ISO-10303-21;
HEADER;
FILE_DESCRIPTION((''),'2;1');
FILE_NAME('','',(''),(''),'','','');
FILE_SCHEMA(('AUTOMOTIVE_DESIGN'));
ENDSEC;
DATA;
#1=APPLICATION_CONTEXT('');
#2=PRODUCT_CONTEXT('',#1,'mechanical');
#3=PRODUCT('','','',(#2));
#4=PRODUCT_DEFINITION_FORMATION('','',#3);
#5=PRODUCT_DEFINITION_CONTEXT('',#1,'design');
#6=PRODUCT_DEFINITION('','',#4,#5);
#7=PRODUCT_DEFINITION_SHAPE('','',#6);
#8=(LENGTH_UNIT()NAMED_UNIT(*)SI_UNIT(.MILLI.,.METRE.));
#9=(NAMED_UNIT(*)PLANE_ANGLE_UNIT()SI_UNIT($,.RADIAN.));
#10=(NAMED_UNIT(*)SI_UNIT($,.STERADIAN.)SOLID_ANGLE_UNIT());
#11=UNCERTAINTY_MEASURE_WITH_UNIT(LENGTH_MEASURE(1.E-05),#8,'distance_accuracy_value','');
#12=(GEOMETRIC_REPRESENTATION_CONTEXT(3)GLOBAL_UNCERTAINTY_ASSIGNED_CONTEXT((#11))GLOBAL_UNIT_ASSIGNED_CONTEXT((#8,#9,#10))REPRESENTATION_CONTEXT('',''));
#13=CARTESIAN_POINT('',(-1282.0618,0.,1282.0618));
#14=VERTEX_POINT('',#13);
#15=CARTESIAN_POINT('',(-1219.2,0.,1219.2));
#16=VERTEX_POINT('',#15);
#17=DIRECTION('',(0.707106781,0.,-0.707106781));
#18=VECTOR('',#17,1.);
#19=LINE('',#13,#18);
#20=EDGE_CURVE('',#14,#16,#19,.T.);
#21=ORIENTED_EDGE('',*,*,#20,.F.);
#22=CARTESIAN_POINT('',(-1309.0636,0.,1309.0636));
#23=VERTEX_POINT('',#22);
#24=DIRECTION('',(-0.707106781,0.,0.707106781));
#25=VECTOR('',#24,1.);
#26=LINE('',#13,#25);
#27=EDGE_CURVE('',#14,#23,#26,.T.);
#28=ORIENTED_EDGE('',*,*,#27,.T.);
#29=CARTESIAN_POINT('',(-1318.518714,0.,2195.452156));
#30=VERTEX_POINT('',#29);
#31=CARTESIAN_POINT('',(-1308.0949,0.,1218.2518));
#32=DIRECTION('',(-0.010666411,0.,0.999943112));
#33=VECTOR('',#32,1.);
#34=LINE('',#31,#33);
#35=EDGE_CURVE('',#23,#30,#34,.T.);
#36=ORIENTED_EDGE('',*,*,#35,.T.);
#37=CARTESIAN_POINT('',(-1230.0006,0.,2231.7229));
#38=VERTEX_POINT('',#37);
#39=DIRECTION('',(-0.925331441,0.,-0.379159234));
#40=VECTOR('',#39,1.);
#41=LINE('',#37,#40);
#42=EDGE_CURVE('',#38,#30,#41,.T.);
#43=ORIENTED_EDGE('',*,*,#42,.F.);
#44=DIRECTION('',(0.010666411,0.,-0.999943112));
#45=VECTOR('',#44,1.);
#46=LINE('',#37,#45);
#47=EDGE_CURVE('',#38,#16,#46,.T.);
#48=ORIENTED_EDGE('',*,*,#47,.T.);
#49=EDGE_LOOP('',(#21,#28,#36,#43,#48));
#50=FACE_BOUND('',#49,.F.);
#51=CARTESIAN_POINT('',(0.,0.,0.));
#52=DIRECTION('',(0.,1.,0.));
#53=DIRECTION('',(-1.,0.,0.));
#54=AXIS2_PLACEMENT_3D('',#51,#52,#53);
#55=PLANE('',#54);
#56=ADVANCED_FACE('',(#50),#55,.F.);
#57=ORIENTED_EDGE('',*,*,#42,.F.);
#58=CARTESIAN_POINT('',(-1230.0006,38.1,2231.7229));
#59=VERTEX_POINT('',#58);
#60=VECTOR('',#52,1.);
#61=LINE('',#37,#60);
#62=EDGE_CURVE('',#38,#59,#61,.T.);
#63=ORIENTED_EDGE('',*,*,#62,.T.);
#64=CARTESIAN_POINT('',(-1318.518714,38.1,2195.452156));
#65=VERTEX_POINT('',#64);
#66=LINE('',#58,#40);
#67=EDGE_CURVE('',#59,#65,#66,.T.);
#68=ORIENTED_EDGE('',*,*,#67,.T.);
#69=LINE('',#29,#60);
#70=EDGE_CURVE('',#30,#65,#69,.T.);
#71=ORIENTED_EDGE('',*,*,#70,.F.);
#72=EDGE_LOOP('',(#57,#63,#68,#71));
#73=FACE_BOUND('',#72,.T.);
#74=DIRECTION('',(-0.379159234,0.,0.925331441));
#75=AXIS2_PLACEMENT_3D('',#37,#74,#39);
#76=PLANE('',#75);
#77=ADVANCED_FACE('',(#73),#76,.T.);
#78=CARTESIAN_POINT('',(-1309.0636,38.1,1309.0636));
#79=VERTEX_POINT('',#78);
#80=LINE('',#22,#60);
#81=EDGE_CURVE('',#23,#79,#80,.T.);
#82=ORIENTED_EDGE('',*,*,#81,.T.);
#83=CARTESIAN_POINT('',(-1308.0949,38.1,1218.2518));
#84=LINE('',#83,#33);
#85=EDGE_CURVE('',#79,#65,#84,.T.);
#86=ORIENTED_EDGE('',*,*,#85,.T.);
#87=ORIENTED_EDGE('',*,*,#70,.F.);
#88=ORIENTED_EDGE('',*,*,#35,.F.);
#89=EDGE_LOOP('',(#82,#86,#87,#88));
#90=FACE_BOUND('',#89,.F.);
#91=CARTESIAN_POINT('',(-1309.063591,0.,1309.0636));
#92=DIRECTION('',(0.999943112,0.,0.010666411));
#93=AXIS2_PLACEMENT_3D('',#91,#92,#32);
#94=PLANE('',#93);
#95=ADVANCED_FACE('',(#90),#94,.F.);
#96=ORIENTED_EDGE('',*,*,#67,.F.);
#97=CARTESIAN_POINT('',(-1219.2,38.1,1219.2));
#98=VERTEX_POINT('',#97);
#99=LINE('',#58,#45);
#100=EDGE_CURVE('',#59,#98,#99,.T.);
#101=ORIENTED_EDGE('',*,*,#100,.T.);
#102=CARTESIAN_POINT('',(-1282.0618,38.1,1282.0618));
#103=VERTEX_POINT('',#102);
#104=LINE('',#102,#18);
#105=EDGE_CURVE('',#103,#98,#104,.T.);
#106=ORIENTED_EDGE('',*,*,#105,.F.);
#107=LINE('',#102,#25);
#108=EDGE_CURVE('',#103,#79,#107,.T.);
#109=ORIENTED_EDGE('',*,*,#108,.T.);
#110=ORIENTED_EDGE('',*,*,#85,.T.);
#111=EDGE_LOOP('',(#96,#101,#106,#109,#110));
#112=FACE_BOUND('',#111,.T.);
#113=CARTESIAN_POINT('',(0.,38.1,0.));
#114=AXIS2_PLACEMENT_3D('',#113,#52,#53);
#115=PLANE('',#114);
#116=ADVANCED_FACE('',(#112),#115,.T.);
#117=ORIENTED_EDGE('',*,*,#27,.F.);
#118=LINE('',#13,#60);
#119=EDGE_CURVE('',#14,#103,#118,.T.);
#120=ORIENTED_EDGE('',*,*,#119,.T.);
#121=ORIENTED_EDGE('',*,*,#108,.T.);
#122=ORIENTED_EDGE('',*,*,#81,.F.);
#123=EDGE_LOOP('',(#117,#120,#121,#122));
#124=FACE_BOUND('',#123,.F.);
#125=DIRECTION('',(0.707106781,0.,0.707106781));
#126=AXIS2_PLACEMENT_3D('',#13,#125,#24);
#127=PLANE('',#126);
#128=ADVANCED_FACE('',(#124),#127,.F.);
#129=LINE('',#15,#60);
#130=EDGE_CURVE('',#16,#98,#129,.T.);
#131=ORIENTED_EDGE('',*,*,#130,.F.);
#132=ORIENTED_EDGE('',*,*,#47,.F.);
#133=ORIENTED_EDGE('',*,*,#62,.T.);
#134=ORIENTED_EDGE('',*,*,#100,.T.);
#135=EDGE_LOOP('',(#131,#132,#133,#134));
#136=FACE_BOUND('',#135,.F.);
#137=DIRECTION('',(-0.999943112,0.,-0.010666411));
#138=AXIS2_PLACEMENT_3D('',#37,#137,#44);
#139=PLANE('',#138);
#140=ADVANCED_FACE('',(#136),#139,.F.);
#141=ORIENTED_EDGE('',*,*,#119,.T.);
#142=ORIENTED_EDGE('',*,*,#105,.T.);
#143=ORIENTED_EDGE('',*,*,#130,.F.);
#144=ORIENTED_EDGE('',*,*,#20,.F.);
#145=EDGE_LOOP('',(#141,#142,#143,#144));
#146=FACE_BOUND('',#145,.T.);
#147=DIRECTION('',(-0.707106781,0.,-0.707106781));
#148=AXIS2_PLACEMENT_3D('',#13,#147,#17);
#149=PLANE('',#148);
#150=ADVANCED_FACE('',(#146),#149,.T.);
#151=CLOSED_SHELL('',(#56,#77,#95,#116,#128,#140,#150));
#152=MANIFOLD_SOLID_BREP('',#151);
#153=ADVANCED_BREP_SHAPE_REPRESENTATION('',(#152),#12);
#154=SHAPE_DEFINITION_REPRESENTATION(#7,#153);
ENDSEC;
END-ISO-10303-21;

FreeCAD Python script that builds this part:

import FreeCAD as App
import Part
import Sketcher
Q = App.Units.Quantity

doc = App.newDocument("Part")
body = doc.addObject("PartDesign::Body", "Body")

# Sketch on XZ plane
sketch1 = body.newObject("Sketcher::SketchObject", "Sketch")
sketch1.AttachmentSupport = (doc.getObject("XZ_Plane"), [""])
sketch1.MapMode = "FlatFace"
sketch1.addGeometry([
    Part.LineSegment(App.Vector(-1230, 2232, 0), App.Vector(-1219, 1219, 0)),
    Part.LineSegment(App.Vector(-1219, 1219, 0), App.Vector(-1309, 1309, 0)),
    Part.LineSegment(App.Vector(-1309, 1309, 0), App.Vector(-1319, 2195, 0)),
    Part.LineSegment(App.Vector(-1319, 2195, 0), App.Vector(-1230, 2232, 0)),
], False)
sketch1.addConstraint([
    Sketcher.Constraint("Coincident", 0, 2, 1, 1),
    Sketcher.Constraint("Coincident", 1, 2, 2, 1),
    Sketcher.Constraint("Coincident", 2, 2, 3, 1),
    Sketcher.Constraint("Coincident", 3, 2, 0, 1),
    Sketcher.Constraint("Parallel", 0, 2),
    Sketcher.Constraint("DistanceX", 0, 2, -1, 1, Q("48 in")),
    Sketcher.Constraint("DistanceY", -1, 1, 0, 2, Q("48 in")),
    Sketcher.Constraint("Angle", 1, Q("135 deg")),
    Sketcher.Constraint("Angle", 0, Q("-89.3888 deg")),
    Sketcher.Constraint("Distance", 1, Q("5.0034 in")),
    Sketcher.Constraint("DistanceY", -1, 1, 3, 2, Q("87.8631 in")),
    Sketcher.Constraint("Distance", 2, 886.439),
])
pad1 = body.newObject("PartDesign::Pad", "Pad")
pad1.Profile = sketch1
pad1.Length = Q("1.5 in")
pad1.Reversed = True

doc.recompute()
